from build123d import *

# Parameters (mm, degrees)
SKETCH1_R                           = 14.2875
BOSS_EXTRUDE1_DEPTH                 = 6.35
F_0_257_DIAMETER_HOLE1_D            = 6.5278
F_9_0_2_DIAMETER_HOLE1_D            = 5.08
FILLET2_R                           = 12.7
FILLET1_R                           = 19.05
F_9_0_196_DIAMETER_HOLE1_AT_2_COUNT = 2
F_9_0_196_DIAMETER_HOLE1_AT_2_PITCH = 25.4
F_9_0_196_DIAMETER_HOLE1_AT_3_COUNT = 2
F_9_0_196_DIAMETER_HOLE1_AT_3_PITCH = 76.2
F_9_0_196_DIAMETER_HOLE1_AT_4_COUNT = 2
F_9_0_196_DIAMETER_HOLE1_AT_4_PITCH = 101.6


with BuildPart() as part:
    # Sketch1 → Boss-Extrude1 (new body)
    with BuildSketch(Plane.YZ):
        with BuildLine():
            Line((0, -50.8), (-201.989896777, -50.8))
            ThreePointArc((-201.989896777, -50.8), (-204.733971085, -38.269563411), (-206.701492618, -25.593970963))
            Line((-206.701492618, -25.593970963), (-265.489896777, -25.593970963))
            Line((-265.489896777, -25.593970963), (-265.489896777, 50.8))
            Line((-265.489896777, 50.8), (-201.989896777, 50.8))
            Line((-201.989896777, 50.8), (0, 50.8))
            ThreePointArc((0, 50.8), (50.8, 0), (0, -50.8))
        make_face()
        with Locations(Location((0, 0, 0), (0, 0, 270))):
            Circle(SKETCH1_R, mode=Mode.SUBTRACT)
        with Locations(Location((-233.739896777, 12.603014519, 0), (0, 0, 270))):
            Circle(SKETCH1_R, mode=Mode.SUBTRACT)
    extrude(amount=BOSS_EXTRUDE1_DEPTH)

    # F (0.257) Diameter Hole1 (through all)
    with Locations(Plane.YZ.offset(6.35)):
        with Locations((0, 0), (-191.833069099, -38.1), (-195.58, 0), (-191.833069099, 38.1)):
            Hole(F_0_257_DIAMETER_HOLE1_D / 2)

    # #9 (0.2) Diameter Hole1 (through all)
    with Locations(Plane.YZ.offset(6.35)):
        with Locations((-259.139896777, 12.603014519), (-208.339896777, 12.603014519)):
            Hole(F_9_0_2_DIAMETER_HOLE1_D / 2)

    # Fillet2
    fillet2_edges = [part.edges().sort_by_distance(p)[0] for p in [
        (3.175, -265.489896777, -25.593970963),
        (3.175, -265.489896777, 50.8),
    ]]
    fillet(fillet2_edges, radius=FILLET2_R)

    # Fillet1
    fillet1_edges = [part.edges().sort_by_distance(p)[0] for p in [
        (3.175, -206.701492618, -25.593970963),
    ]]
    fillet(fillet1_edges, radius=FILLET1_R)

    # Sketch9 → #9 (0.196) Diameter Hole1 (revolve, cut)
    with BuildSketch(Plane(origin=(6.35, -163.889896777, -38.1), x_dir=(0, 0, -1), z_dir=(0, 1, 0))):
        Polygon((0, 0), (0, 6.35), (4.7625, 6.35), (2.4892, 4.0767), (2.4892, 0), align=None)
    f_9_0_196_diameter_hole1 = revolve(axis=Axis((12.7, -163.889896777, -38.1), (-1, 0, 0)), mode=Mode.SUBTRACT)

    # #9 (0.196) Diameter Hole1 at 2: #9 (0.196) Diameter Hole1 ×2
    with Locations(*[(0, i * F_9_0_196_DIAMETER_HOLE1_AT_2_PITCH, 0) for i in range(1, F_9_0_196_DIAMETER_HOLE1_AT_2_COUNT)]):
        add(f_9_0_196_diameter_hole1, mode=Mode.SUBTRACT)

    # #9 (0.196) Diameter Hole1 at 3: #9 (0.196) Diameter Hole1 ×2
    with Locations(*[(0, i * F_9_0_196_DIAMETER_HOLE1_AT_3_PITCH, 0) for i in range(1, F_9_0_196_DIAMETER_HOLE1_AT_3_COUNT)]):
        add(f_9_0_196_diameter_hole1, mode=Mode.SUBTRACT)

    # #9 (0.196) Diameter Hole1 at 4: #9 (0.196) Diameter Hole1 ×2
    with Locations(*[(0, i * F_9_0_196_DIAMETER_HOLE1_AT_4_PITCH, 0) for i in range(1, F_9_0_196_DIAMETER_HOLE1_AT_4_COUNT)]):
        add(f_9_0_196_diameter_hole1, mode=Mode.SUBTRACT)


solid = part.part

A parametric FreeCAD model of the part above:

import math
import FreeCAD as App
import Part
import Sketcher
Q = App.Units.Quantity


def edges_at(feature, points):
    """Names of the edges that pass closest to the given points."""
    edges = feature.Shape.Edges
    near = lambda p: min(range(len(edges)), key=lambda i: edges[i].distToShape(Part.Vertex(*p))[0])
    return sorted({f"Edge{near(p) + 1}" for p in points})


def add_polygon(sketch, points):
    """Adds a closed chain of lines whose ends are joined by coincident constraints."""
    first, n = sketch.GeometryCount, len(points)
    for a, b in zip(points, points[1:] + points[:1]):
        sketch.addGeometry(Part.LineSegment(App.Vector(*a, 0), App.Vector(*b, 0)), False)
    for i in range(n):
        sketch.addConstraint(Sketcher.Constraint("Coincident", first + i, 2, first + (i + 1) % n, 1))

doc = App.newDocument("Part")
body = doc.addObject("PartDesign::Body", "Body")

# Sketch on YZ plane
sketch1 = doc.addObject("Sketcher::SketchObject", "Sketch")
body.addObject(sketch1)
sketch1.AttachmentSupport = (doc.YZ_Plane, [""])
sketch1.MapMode = "FlatFace"
sketch1.addGeometry(Part.LineSegment(App.Vector(-202, -51, 0), App.Vector(0, -51, 0)), False)
sketch1.addGeometry(Part.ArcOfCircle(Part.Circle(App.Vector(0, 0, 0), App.Vector(0, 0, 1), 51), math.radians(-90), math.radians(90)), False)
sketch1.addGeometry(Part.LineSegment(App.Vector(0, 51, 0), App.Vector(-265, 51, 0)), False)
sketch1.addGeometry(Part.LineSegment(App.Vector(-265, 51, 0), App.Vector(-265, -26, 0)), False)
sketch1.addGeometry(Part.LineSegment(App.Vector(-265, -26, 0), App.Vector(-207, -26, 0)), False)
sketch1.addGeometry(Part.ArcOfCircle(Part.Circle(App.Vector(0, 0, 0), App.Vector(0, 0, 1), 208), math.radians(-172.94), math.radians(-165.88)), False)
sketch1.addGeometry(Part.Circle(App.Vector(0, 0, 0), App.Vector(0, 0, 1), 14), False)
sketch1.addGeometry(Part.Circle(App.Vector(-234, 13, 0), App.Vector(0, 0, 1), 14), False)
sketch1.addConstraint(Sketcher.Constraint("Tangent", 0, 2, 1, 1))
sketch1.addConstraint(Sketcher.Constraint("Tangent", 1, 2, 2, 1))
sketch1.addConstraint(Sketcher.Constraint("Coincident", 2, 2, 3, 1))
sketch1.addConstraint(Sketcher.Constraint("Coincident", 3, 2, 4, 1))
sketch1.addConstraint(Sketcher.Constraint("Coincident", 4, 2, 5, 1))
sketch1.addConstraint(Sketcher.Constraint("Coincident", 5, 2, 0, 1))
sketch1.addConstraint(Sketcher.Constraint("Horizontal", 0))
sketch1.addConstraint(Sketcher.Constraint("Horizontal", 2))
sketch1.addConstraint(Sketcher.Constraint("Vertical", 3))
sketch1.addConstraint(Sketcher.Constraint("Horizontal", 4))
sketch1.addConstraint(Sketcher.Constraint("Coincident", 1, 3, -1, 1))
sketch1.addConstraint(Sketcher.Constraint("Coincident", 5, 3, -1, 1))
sketch1.addConstraint(Sketcher.Constraint("Coincident", 6, 3, -1, 1))
sketch1.addConstraint(Sketcher.Constraint("Equal", 6, 7))
sketch1.addConstraint(Sketcher.Constraint("Radius", 1, Q("2 in")))
sketch1.addConstraint(Sketcher.Constraint("Radius", 5, Q("8.2 in")))
sketch1.addConstraint(Sketcher.Constraint("Diameter", 6, Q("1.125 in")))
sketch1.addConstraint(Sketcher.Constraint("DistanceX", 3, 2, 5, 2, Q("2.5 in")))
sketch1.addConstraint(Sketcher.Constraint("DistanceX", 2, 2, 7, 3, Q("1.25 in")))
sketch1.addConstraint(Sketcher.Constraint("DistanceY", 3, 2, 3, 1, 76.393971))
sketch1.addConstraint(Sketcher.Constraint("DistanceY", -1, 1, 7, 3, 12.603015))
pad1 = doc.addObject("PartDesign::Pad", "Pad")
body.addObject(pad1)
pad1.Profile = sketch1
pad1.Length = Q("0.25 in")

# Sketch on YZ plane
sketch2 = doc.addObject("Sketcher::SketchObject", "Sketch001")
body.addObject(sketch2)
sketch2.AttachmentSupport = (doc.YZ_Plane, [""])
sketch2.MapMode = "FlatFace"
sketch2.AttachmentOffset = App.Placement(App.Vector(0, 0, 0.25 * 25.4), App.Rotation())
sketch2.addGeometry(Part.Circle(App.Vector(0, 0, 0), App.Vector(0, 0, 1), 3.3), False)
sketch2.addGeometry(Part.Circle(App.Vector(-191.8, -38.1, 0), App.Vector(0, 0, 1), 3.3), False)
sketch2.addGeometry(Part.Circle(App.Vector(-195.6, 0, 0), App.Vector(0, 0, 1), 3.3), False)
sketch2.addGeometry(Part.Circle(App.Vector(-191.8, 38.1, 0), App.Vector(0, 0, 1), 3.3), False)
sketch2.addConstraint(Sketcher.Constraint("Coincident", 0, 3, -1, 1))
sketch2.addConstraint(Sketcher.Constraint("Equal", 0, 1))
sketch2.addConstraint(Sketcher.Constraint("Equal", 1, 2))
sketch2.addConstraint(Sketcher.Constraint("Equal", 2, 3))
sketch2.addConstraint(Sketcher.Constraint("Symmetric", 1, 3, 3, 3, -1))
sketch2.addConstraint(Sketcher.Constraint("PointOnObject", 2, 3, -1))
sketch2.addConstraint(Sketcher.Constraint("Diameter", 0, Q("0.257 in")))
sketch2.addConstraint(Sketcher.Constraint("DistanceY", 1, 3, 3, 3, Q("3 in")))
sketch2.addConstraint(Sketcher.Constraint("DistanceX", 2, 3, -1, 1, Q("7.7 in")))
sketch2.addConstraint(Sketcher.Constraint("DistanceX", 1, 3, -1, 1, 191.833069))
doc.recompute()
hole = doc.addObject("PartDesign::Hole", "Hole")
body.addObject(hole)
hole.Profile = sketch2
hole.ThreadType = "None"
hole.Diameter = Q("0.257 in")
hole.DepthType = "ThroughAll"

# Sketch on YZ plane
sketch3 = doc.addObject("Sketcher::SketchObject", "Sketch002")
body.addObject(sketch3)
sketch3.AttachmentSupport = (doc.YZ_Plane, [""])
sketch3.MapMode = "FlatFace"
sketch3.AttachmentOffset = App.Placement(App.Vector(0, 0, 0.25 * 25.4), App.Rotation())
sketch3.addGeometry(Part.Circle(App.Vector(-259.1, 12.6, 0), App.Vector(0, 0, 1), 2.5), False)
sketch3.addGeometry(Part.Circle(App.Vector(-208.3, 12.6, 0), App.Vector(0, 0, 1), 2.5), False)
sketch3.addConstraint(Sketcher.Constraint("Equal", 0, 1))
sketch3.addConstraint(Sketcher.Constraint("Horizontal", 0, 3, 1, 3))
sketch3.addConstraint(Sketcher.Constraint("Diameter", 0, Q("0.2 in")))
sketch3.addConstraint(Sketcher.Constraint("DistanceX", 0, 3, 1, 3, Q("2 in")))
sketch3.addConstraint(Sketcher.Constraint("DistanceX", 0, 3, -1, 1, 259.139897))
sketch3.addConstraint(Sketcher.Constraint("DistanceY", -1, 1, 0, 3, 12.603015))
doc.recompute()
hole2 = doc.addObject("PartDesign::Hole", "Hole001")
body.addObject(hole2)
hole2.Profile = sketch3
hole2.ThreadType = "None"
hole2.Diameter = Q("0.2 in")
hole2.DepthType = "ThroughAll"
doc.recompute()

fillet = doc.addObject("PartDesign::Fillet", "Fillet")
body.addObject(fillet)
fillet.Base = (hole2, edges_at(hole2, [(3.175, -265.49, -25.594), (3.175, -265.49, 50.8)]))
fillet.Radius = Q("0.5 in")
doc.recompute()

fillet2 = doc.addObject("PartDesign::Fillet", "Fillet001")
body.addObject(fillet2)
fillet2.Base = (fillet, edges_at(fillet, [(3.175, -206.701, -25.594)]))
fillet2.Radius = Q("0.75 in")

# Sketch on XZ plane
sketch4 = doc.addObject("Sketcher::SketchObject", "Sketch003")
body.addObject(sketch4)
sketch4.AttachmentSupport = (doc.XZ_Plane, [""])
sketch4.MapMode = "FlatFace"
sketch4.AttachmentOffset = App.Placement(App.Vector(0, 0, 163.889897), App.Rotation())
add_polygon(sketch4, [(0, -38.1), (6.3, -38.1), (6.3, -40.6), (2.3, -40.6), (0, -42.9)])  # lines 0-4
sketch4.addGeometry(Part.LineSegment(App.Vector(6.3, -38.1, 0), App.Vector(0, -38.1, 0)), True)  # axis
sketch4.addConstraint(Sketcher.Constraint("Horizontal", 0))
sketch4.addConstraint(Sketcher.Constraint("Vertical", 1))
sketch4.addConstraint(Sketcher.Constraint("Horizontal", 2))
sketch4.addConstraint(Sketcher.Constraint("Vertical", 4))
sketch4.addConstraint(Sketcher.Constraint("Horizontal", 5))
sketch4.addConstraint(Sketcher.Constraint("Coincident", 5, 1, 0, 2))
sketch4.addConstraint(Sketcher.Constraint("PointOnObject", 3, 2, -2))
sketch4.addConstraint(Sketcher.Constraint("PointOnObject", 5, 2, -2))
sketch4.addConstraint(Sketcher.Constraint("Angle", 3, Q("-135 deg")))
sketch4.addConstraint(Sketcher.Constraint("DistanceX", 0, 1, 0, 2, Q("0.25 in")))
sketch4.addConstraint(Sketcher.Constraint("DistanceY", 0, 2, -1, 1, Q("1.5 in")))
sketch4.addConstraint(Sketcher.Constraint("DistanceY", 1, 2, 1, 1, Q("0.098 in")))
sketch4.addConstraint(Sketcher.Constraint("DistanceY", 4, 1, 4, 2, Q("0.1875 in")))
groove = doc.addObject("PartDesign::Groove", "Groove")
body.addObject(groove)
groove.Profile = sketch4
groove.ReferenceAxis = (sketch4, ["Axis0"])
groove.Angle = 360
doc.recompute()

linearpattern = doc.addObject("PartDesign::LinearPattern", "LinearPattern")
body.addObject(linearpattern)
linearpattern.Originals = [groove]
linearpattern.Direction = (doc.Y_Axis, [""])
linearpattern.Mode = "offset"
linearpattern.Offset = Q("1 in")
linearpattern.Occurrences = 2
body.Tip = linearpattern
doc.recompute()

linearpattern2 = doc.addObject("PartDesign::LinearPattern", "LinearPattern001")
body.addObject(linearpattern2)
linearpattern2.Originals = [groove]
linearpattern2.Direction = (doc.Y_Axis, [""])
linearpattern2.Mode = "offset"
linearpattern2.Offset = Q("3 in")
linearpattern2.Occurrences = 2
body.Tip = linearpattern2
doc.recompute()

linearpattern3 = doc.addObject("PartDesign::LinearPattern", "LinearPattern002")
body.addObject(linearpattern3)
linearpattern3.Originals = [groove]
linearpattern3.Direction = (doc.Y_Axis, [""])
linearpattern3.Mode = "offset"
linearpattern3.Offset = Q("4 in")
linearpattern3.Occurrences = 2
body.Tip = linearpattern3

doc.recompute()
